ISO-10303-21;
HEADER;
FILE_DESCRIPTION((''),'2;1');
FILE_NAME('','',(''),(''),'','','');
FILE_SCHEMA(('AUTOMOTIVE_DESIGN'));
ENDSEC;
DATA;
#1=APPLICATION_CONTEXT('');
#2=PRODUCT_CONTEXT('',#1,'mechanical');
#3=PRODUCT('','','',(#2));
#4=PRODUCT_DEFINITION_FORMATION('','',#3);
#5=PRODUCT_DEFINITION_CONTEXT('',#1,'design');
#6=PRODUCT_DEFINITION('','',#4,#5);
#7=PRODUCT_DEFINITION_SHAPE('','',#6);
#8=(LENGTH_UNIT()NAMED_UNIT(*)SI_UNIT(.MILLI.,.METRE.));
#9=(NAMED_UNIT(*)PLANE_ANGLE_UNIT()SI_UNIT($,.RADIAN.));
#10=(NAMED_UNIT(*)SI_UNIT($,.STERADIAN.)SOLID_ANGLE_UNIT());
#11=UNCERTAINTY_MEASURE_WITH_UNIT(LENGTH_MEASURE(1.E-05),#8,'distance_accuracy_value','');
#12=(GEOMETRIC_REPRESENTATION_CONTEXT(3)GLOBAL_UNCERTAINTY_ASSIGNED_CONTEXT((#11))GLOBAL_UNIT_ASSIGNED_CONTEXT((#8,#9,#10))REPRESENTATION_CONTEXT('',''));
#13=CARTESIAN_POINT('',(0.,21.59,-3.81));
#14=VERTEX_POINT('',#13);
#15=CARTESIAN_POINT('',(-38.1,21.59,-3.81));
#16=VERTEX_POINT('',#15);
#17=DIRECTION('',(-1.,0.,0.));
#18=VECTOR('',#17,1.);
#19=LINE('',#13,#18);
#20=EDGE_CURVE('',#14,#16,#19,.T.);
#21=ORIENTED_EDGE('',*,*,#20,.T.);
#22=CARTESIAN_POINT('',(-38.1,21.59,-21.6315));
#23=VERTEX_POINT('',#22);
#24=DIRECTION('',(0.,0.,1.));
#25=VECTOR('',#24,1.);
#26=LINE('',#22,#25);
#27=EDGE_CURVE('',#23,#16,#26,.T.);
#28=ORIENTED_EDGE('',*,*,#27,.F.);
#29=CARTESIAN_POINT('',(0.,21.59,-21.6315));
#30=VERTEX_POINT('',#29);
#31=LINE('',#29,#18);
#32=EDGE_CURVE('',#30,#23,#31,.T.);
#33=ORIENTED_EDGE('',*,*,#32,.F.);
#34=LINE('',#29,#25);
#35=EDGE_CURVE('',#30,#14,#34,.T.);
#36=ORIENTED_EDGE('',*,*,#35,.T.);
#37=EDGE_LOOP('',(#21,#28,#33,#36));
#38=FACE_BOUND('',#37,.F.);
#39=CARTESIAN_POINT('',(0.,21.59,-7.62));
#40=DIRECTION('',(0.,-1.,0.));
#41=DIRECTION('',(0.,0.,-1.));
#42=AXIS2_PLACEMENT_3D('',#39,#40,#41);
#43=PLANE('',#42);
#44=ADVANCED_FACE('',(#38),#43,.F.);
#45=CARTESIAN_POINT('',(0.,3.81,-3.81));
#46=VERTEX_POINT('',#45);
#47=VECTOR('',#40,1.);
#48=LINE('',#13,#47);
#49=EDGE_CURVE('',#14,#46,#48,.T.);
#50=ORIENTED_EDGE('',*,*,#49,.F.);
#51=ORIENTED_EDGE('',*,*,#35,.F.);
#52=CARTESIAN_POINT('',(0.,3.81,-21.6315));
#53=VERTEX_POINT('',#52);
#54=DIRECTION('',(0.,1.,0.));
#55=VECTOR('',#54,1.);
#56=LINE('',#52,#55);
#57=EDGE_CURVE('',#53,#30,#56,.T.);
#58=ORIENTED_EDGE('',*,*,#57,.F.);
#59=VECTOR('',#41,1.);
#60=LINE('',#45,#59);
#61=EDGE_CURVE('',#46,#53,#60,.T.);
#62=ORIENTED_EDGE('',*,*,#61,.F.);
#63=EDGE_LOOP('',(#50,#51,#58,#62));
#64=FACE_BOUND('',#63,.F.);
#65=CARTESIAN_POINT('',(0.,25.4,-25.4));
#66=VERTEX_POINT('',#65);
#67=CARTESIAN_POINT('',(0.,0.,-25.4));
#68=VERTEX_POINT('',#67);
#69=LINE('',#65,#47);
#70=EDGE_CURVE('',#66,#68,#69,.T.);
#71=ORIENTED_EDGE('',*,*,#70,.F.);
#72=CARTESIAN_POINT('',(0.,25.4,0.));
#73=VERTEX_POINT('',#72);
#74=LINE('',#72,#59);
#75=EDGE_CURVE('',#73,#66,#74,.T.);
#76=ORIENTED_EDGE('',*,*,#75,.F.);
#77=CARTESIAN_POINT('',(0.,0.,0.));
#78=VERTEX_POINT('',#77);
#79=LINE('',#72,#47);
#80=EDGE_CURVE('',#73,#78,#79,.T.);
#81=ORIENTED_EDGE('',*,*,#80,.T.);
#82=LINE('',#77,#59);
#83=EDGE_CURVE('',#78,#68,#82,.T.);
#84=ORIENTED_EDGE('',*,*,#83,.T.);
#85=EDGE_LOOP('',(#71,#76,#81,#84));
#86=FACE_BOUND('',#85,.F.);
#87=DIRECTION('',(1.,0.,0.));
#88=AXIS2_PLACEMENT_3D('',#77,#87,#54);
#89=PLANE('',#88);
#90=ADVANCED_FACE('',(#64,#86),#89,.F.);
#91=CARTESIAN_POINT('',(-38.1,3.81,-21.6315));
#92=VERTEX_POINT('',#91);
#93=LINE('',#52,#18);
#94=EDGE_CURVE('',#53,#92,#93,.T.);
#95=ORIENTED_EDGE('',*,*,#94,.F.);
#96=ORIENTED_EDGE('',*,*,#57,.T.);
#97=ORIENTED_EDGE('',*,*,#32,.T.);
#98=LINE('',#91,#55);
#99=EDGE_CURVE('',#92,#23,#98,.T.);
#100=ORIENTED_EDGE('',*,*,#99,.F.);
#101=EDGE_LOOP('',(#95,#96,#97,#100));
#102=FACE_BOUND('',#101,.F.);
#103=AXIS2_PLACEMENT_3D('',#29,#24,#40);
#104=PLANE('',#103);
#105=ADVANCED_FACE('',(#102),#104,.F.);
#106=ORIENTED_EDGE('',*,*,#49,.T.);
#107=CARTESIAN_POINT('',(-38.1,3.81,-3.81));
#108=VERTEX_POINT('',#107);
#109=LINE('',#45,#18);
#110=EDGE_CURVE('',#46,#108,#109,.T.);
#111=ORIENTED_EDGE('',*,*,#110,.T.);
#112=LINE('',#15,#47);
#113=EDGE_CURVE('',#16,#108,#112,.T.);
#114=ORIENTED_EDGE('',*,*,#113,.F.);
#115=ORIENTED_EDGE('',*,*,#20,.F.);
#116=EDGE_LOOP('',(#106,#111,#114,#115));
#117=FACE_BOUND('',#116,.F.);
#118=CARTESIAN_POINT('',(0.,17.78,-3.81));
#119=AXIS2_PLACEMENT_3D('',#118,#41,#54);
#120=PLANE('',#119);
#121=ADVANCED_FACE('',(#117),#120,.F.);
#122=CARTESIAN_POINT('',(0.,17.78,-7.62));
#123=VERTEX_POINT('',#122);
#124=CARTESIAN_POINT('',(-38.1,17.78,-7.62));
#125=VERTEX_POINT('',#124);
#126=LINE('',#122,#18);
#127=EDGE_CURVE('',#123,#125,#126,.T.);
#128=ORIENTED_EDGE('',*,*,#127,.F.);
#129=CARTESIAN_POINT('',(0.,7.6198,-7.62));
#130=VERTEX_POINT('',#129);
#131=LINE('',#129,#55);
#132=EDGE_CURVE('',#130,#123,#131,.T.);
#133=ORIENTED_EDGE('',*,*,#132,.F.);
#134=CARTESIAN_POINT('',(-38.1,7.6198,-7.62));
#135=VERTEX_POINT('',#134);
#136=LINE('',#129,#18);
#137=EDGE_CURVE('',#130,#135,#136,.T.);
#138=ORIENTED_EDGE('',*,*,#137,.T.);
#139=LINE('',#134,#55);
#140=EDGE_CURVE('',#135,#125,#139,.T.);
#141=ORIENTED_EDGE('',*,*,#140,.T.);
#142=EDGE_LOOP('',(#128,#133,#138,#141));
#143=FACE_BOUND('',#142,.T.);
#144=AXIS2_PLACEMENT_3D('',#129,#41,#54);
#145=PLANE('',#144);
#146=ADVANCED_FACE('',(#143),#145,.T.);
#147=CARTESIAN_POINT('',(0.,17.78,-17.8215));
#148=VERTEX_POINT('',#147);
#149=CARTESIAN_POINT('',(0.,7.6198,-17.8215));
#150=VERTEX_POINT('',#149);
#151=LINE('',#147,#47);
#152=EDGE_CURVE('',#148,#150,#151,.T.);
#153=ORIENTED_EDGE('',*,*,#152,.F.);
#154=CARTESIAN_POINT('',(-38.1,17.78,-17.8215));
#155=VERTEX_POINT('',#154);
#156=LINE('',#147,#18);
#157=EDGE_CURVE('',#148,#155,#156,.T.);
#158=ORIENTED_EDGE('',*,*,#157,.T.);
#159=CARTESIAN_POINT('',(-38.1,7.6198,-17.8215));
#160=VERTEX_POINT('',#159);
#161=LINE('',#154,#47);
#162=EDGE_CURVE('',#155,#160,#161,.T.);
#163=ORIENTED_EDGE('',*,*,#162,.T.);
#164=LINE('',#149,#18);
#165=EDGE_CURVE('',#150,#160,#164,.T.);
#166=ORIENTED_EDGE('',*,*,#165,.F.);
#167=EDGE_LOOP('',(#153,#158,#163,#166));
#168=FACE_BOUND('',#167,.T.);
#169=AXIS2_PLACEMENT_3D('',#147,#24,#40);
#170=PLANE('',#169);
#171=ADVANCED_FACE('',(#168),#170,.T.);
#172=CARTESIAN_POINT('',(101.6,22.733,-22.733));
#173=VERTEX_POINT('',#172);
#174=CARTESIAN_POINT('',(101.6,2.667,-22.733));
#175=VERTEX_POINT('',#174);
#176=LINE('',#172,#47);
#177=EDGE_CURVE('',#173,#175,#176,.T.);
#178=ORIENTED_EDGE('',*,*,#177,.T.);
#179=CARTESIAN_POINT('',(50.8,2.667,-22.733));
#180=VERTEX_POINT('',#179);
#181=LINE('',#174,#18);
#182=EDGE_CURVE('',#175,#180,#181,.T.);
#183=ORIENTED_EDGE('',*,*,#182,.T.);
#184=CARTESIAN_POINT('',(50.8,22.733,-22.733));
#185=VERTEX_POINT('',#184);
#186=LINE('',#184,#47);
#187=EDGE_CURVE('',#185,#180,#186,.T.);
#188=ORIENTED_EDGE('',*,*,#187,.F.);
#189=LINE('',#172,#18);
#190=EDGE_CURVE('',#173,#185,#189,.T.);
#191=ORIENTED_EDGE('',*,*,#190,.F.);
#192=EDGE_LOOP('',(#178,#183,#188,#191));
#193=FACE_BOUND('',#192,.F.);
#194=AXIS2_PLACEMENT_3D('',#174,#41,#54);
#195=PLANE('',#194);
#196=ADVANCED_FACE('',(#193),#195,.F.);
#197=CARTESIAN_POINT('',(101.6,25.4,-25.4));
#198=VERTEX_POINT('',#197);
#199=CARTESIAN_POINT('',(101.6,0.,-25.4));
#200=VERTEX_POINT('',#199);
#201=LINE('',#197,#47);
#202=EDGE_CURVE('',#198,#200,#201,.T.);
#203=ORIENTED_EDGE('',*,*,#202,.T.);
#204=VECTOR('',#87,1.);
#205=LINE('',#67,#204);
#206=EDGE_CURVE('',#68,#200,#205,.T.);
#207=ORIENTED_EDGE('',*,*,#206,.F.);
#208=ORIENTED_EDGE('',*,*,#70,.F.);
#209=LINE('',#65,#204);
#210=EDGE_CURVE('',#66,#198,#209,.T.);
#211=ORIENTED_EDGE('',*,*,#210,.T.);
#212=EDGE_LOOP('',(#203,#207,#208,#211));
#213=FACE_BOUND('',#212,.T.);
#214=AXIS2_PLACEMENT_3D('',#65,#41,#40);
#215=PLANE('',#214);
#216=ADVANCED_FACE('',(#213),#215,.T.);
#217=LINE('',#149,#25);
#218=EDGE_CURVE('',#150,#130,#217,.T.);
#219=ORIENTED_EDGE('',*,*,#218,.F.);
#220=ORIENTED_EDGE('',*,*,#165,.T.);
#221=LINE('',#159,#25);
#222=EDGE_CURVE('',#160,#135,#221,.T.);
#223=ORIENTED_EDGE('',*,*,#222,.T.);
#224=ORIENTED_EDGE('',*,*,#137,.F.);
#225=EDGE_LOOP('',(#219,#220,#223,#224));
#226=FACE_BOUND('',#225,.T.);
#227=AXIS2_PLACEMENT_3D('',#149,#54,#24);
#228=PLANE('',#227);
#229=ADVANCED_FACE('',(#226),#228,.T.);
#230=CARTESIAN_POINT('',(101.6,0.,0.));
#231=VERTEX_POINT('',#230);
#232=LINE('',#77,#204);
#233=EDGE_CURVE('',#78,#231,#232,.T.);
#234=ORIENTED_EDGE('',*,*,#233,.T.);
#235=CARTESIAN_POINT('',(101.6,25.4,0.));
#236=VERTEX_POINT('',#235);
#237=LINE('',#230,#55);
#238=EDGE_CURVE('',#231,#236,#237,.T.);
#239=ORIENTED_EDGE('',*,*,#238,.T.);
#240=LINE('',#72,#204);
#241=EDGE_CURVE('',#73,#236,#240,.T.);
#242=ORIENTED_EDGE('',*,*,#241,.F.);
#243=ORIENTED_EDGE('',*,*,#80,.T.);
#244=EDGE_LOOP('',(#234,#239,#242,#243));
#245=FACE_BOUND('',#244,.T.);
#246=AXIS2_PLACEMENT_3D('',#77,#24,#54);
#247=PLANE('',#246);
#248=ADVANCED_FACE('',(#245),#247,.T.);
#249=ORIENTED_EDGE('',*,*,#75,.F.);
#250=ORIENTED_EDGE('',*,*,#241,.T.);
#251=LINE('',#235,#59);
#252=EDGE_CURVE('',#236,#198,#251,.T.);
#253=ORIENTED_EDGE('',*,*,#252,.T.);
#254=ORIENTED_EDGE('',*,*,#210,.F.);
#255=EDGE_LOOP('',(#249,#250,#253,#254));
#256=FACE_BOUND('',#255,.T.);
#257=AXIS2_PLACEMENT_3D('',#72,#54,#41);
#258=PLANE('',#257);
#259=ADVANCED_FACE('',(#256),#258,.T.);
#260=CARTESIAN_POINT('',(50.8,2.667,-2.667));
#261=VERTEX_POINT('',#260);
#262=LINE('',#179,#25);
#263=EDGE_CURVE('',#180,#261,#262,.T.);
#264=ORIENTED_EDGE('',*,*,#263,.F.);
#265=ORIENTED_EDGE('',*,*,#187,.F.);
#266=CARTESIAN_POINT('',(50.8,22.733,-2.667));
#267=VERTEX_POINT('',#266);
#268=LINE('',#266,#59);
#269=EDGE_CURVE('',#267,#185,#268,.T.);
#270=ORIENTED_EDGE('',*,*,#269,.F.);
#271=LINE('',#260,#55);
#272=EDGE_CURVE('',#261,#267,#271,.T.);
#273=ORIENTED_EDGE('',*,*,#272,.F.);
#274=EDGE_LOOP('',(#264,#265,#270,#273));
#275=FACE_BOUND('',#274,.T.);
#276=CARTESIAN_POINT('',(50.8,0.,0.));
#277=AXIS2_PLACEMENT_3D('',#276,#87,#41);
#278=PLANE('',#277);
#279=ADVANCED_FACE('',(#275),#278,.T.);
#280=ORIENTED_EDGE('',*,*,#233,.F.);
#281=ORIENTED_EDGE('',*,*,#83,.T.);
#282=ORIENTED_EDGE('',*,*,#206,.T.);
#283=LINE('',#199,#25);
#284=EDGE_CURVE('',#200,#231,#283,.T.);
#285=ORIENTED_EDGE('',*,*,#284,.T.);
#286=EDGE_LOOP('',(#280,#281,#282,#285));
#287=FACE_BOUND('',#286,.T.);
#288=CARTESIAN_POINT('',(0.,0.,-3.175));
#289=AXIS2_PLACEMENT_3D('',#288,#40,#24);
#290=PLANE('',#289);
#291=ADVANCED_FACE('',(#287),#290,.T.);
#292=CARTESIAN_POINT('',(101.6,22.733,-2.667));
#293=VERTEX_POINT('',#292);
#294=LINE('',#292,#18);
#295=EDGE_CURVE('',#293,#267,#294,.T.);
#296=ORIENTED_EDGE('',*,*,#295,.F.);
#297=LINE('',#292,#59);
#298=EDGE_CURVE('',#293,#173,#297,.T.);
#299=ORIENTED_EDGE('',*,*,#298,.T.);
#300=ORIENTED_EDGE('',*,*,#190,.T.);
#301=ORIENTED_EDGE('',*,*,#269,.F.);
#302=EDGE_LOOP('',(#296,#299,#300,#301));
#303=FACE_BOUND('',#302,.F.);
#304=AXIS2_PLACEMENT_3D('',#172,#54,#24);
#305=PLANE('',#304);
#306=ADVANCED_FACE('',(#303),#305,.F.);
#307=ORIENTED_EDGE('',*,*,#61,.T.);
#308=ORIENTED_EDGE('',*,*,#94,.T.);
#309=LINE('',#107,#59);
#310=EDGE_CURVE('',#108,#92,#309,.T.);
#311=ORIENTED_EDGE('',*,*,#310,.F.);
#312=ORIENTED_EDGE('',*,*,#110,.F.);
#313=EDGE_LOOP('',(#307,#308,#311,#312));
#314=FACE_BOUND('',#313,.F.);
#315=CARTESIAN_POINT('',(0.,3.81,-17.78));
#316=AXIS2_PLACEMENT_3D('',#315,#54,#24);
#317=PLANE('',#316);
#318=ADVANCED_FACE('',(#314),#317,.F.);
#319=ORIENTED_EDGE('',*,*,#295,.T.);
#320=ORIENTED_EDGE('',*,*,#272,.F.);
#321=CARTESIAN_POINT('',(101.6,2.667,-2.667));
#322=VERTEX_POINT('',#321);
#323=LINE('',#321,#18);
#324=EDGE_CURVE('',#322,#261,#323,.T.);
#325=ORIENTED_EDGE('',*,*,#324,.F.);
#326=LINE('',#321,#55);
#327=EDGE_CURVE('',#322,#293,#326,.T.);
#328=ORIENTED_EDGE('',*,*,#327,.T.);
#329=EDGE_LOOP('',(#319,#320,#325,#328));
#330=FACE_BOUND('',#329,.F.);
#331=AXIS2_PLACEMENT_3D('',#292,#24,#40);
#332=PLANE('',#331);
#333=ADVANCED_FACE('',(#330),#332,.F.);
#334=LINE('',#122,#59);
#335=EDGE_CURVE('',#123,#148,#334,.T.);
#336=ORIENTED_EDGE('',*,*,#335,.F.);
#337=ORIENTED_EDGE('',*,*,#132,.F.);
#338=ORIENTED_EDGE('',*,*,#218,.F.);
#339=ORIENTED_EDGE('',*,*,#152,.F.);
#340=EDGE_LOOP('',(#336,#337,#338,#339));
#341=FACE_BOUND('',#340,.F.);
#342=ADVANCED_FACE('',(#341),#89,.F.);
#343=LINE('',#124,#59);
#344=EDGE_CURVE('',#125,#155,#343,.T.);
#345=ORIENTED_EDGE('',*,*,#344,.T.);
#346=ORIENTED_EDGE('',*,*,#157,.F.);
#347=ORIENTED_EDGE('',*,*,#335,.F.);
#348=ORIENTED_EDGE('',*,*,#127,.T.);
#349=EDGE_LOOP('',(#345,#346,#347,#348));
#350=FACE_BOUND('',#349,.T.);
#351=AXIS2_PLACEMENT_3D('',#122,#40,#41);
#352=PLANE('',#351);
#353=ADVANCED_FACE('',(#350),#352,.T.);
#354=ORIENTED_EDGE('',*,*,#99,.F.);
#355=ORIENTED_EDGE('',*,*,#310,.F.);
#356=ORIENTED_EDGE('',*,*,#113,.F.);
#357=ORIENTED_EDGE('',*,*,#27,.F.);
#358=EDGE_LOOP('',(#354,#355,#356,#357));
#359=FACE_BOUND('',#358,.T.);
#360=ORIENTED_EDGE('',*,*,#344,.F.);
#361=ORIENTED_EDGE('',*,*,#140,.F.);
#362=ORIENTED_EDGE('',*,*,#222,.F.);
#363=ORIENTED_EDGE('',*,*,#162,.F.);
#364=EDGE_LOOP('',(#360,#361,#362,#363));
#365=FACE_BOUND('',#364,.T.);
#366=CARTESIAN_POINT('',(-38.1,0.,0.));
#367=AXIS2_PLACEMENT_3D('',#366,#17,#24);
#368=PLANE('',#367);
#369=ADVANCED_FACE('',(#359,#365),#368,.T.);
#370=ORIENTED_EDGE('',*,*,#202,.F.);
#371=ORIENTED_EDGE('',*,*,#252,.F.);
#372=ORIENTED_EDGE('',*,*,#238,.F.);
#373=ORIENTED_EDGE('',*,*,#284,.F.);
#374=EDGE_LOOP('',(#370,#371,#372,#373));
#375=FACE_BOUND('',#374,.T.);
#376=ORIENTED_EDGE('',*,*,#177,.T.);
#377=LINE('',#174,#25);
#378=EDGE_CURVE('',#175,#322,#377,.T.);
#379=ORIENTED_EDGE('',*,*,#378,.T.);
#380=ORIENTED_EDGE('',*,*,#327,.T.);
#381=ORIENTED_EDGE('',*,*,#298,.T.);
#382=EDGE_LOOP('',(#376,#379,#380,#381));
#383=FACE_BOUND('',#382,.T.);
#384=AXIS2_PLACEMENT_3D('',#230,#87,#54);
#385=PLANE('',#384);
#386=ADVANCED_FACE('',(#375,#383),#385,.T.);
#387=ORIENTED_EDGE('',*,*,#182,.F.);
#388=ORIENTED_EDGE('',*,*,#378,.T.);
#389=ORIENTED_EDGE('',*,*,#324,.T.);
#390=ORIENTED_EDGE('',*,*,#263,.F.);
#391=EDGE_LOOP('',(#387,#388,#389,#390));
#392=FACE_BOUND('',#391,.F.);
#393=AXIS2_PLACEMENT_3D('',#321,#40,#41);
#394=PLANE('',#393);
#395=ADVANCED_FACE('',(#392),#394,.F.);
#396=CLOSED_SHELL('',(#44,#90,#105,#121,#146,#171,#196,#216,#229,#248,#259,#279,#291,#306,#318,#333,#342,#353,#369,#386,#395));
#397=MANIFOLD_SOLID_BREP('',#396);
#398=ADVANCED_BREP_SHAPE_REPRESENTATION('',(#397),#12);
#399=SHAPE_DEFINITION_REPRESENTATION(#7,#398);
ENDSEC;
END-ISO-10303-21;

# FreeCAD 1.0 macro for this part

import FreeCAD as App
import Part
import Sketcher

V = App.Vector
Q = App.Units.Quantity

doc = App.newDocument("Part")
body = doc.addObject("PartDesign::Body", "Body")

# Sketch on YZ plane
sketch1 = body.newObject("Sketcher::SketchObject", "Sketch")
sketch1.AttachmentSupport = (doc.getObject("YZ_Plane"), [""])
sketch1.MapMode = "FlatFace"
sketch1.addGeometry([
    Part.LineSegment(V(0, 0, 0), V(0, -25, 0)),
    Part.LineSegment(V(0, -25, 0), V(25, -25, 0)),
    Part.LineSegment(V(25, -25, 0), V(25, 0, 0)),
    Part.LineSegment(V(25, 0, 0), V(0, 0, 0)),
], False)
sketch1.addConstraint([
    Sketcher.Constraint("Coincident", 0, 2, 1, 1),
    Sketcher.Constraint("Coincident", 1, 2, 2, 1),
    Sketcher.Constraint("Coincident", 2, 2, 3, 1),
    Sketcher.Constraint("Coincident", 3, 2, 0, 1),
    Sketcher.Constraint("Vertical", 0),
    Sketcher.Constraint("Horizontal", 1),
    Sketcher.Constraint("Vertical", 2),
    Sketcher.Constraint("Horizontal", 3),
    Sketcher.Constraint("Coincident", 3, 2, -1, 1),
    Sketcher.Constraint("Equal", 3, 0),
    Sketcher.Constraint("DistanceX", 1, 1, 1, 2, Q("1 in")),
])
pad1 = body.newObject("PartDesign::Pad", "Pad")
pad1.Profile = sketch1
pad1.Length = Q("4 in")

# Sketch on YZ plane
sketch2 = body.newObject("Sketcher::SketchObject", "Sketch001")
sketch2.AttachmentSupport = (doc.getObject("YZ_Plane"), [""])
sketch2.MapMode = "FlatFace"
sketch2.AttachmentOffset = App.Placement(V(0, 0, 4 * 25.4), App.Rotation())
sketch2.addGeometry([
    Part.LineSegment(V(3, -23, 0), V(23, -23, 0)),
    Part.LineSegment(V(23, -23, 0), V(23, -3, 0)),
    Part.LineSegment(V(23, -3, 0), V(3, -3, 0)),
    Part.LineSegment(V(3, -3, 0), V(3, -23, 0)),
], False)
sketch2.addConstraint([
    Sketcher.Constraint("Coincident", 0, 2, 1, 1),
    Sketcher.Constraint("Coincident", 1, 2, 2, 1),
    Sketcher.Constraint("Coincident", 2, 2, 3, 1),
    Sketcher.Constraint("Coincident", 3, 2, 0, 1),
    Sketcher.Constraint("Horizontal", 0),
    Sketcher.Constraint("Vertical", 1),
    Sketcher.Constraint("Horizontal", 2),
    Sketcher.Constraint("Vertical", 3),
    Sketcher.Constraint("Equal", 2, 1),
    Sketcher.Constraint("DistanceX", 0, 1, 0, 2, Q("0.79 in")),
    Sketcher.Constraint("DistanceX", -1, 1, 0, 2, Q("0.895 in")),
    Sketcher.Constraint("DistanceY", 0, 2, -1, 1, Q("0.895 in")),
])
pocket1 = body.newObject("PartDesign::Pocket", "Pocket")
pocket1.Profile = sketch2
pocket1.Length = Q("2 in")

# Sketch on YZ plane
sketch3 = body.newObject("Sketcher::SketchObject", "Sketch002")
sketch3.AttachmentSupport = (doc.getObject("YZ_Plane"), [""])
sketch3.MapMode = "FlatFace"
sketch3.addGeometry([
    Part.LineSegment(V(22, -22, 0), V(4, -22, 0)),  # 0
    Part.LineSegment(V(4, -22, 0), V(4, -4, 0)),  # 1
    Part.LineSegment(V(4, -4, 0), V(22, -4, 0)),  # 2
    Part.LineSegment(V(22, -4, 0), V(22, -22, 0)),  # 3
    Part.LineSegment(V(8, -8, 0), V(8, -18, 0)),  # 4
    Part.LineSegment(V(8, -18, 0), V(18, -18, 0)),  # 5
    Part.LineSegment(V(18, -18, 0), V(18, -8, 0)),  # 6
    Part.LineSegment(V(18, -8, 0), V(8, -8, 0)),  # 7
], False)
sketch3.addConstraint([
    Sketcher.Constraint("Coincident", 0, 2, 1, 1),
    Sketcher.Constraint("Coincident", 1, 2, 2, 1),
    Sketcher.Constraint("Coincident", 2, 2, 3, 1),
    Sketcher.Constraint("Coincident", 3, 2, 0, 1),
    Sketcher.Constraint("Coincident", 4, 2, 5, 1),
    Sketcher.Constraint("Coincident", 5, 2, 6, 1),
    Sketcher.Constraint("Coincident", 6, 2, 7, 1),
    Sketcher.Constraint("Coincident", 7, 2, 4, 1),
    Sketcher.Constraint("Horizontal", 0),
    Sketcher.Constraint("Vertical", 1),
    Sketcher.Constraint("Horizontal", 2),
    Sketcher.Constraint("Vertical", 3),
    Sketcher.Constraint("Vertical", 4),
    Sketcher.Constraint("Horizontal", 5),
    Sketcher.Constraint("Vertical", 6),
    Sketcher.Constraint("Horizontal", 7),
    Sketcher.Constraint("DistanceX", 0, 2, 0, 1, Q("0.7 in")),
    Sketcher.Constraint("DistanceX", 5, 1, 5, 2, Q("0.4 in")),
    Sketcher.Constraint("DistanceX", -1, 1, 4, 2, Q("0.3 in")),
    Sketcher.Constraint("DistanceY", 6, 2, -1, 1, Q("0.3 in")),
    Sketcher.Constraint("DistanceX", -1, 1, 0, 2, Q("0.15 in")),
    Sketcher.Constraint("DistanceY", 1, 2, -1, 1, Q("0.15 in")),
    Sketcher.Constraint("DistanceY", 0, 2, 4, 2, Q("0.15 in")),
    Sketcher.Constraint("DistanceY", 1, 1, 1, 2, 17.8215),
])
pad2 = body.newObject("PartDesign::Pad", "Pad001")
pad2.Profile = sketch3
pad2.Length = Q("1.5 in")
pad2.Reversed = True

doc.recompute()
